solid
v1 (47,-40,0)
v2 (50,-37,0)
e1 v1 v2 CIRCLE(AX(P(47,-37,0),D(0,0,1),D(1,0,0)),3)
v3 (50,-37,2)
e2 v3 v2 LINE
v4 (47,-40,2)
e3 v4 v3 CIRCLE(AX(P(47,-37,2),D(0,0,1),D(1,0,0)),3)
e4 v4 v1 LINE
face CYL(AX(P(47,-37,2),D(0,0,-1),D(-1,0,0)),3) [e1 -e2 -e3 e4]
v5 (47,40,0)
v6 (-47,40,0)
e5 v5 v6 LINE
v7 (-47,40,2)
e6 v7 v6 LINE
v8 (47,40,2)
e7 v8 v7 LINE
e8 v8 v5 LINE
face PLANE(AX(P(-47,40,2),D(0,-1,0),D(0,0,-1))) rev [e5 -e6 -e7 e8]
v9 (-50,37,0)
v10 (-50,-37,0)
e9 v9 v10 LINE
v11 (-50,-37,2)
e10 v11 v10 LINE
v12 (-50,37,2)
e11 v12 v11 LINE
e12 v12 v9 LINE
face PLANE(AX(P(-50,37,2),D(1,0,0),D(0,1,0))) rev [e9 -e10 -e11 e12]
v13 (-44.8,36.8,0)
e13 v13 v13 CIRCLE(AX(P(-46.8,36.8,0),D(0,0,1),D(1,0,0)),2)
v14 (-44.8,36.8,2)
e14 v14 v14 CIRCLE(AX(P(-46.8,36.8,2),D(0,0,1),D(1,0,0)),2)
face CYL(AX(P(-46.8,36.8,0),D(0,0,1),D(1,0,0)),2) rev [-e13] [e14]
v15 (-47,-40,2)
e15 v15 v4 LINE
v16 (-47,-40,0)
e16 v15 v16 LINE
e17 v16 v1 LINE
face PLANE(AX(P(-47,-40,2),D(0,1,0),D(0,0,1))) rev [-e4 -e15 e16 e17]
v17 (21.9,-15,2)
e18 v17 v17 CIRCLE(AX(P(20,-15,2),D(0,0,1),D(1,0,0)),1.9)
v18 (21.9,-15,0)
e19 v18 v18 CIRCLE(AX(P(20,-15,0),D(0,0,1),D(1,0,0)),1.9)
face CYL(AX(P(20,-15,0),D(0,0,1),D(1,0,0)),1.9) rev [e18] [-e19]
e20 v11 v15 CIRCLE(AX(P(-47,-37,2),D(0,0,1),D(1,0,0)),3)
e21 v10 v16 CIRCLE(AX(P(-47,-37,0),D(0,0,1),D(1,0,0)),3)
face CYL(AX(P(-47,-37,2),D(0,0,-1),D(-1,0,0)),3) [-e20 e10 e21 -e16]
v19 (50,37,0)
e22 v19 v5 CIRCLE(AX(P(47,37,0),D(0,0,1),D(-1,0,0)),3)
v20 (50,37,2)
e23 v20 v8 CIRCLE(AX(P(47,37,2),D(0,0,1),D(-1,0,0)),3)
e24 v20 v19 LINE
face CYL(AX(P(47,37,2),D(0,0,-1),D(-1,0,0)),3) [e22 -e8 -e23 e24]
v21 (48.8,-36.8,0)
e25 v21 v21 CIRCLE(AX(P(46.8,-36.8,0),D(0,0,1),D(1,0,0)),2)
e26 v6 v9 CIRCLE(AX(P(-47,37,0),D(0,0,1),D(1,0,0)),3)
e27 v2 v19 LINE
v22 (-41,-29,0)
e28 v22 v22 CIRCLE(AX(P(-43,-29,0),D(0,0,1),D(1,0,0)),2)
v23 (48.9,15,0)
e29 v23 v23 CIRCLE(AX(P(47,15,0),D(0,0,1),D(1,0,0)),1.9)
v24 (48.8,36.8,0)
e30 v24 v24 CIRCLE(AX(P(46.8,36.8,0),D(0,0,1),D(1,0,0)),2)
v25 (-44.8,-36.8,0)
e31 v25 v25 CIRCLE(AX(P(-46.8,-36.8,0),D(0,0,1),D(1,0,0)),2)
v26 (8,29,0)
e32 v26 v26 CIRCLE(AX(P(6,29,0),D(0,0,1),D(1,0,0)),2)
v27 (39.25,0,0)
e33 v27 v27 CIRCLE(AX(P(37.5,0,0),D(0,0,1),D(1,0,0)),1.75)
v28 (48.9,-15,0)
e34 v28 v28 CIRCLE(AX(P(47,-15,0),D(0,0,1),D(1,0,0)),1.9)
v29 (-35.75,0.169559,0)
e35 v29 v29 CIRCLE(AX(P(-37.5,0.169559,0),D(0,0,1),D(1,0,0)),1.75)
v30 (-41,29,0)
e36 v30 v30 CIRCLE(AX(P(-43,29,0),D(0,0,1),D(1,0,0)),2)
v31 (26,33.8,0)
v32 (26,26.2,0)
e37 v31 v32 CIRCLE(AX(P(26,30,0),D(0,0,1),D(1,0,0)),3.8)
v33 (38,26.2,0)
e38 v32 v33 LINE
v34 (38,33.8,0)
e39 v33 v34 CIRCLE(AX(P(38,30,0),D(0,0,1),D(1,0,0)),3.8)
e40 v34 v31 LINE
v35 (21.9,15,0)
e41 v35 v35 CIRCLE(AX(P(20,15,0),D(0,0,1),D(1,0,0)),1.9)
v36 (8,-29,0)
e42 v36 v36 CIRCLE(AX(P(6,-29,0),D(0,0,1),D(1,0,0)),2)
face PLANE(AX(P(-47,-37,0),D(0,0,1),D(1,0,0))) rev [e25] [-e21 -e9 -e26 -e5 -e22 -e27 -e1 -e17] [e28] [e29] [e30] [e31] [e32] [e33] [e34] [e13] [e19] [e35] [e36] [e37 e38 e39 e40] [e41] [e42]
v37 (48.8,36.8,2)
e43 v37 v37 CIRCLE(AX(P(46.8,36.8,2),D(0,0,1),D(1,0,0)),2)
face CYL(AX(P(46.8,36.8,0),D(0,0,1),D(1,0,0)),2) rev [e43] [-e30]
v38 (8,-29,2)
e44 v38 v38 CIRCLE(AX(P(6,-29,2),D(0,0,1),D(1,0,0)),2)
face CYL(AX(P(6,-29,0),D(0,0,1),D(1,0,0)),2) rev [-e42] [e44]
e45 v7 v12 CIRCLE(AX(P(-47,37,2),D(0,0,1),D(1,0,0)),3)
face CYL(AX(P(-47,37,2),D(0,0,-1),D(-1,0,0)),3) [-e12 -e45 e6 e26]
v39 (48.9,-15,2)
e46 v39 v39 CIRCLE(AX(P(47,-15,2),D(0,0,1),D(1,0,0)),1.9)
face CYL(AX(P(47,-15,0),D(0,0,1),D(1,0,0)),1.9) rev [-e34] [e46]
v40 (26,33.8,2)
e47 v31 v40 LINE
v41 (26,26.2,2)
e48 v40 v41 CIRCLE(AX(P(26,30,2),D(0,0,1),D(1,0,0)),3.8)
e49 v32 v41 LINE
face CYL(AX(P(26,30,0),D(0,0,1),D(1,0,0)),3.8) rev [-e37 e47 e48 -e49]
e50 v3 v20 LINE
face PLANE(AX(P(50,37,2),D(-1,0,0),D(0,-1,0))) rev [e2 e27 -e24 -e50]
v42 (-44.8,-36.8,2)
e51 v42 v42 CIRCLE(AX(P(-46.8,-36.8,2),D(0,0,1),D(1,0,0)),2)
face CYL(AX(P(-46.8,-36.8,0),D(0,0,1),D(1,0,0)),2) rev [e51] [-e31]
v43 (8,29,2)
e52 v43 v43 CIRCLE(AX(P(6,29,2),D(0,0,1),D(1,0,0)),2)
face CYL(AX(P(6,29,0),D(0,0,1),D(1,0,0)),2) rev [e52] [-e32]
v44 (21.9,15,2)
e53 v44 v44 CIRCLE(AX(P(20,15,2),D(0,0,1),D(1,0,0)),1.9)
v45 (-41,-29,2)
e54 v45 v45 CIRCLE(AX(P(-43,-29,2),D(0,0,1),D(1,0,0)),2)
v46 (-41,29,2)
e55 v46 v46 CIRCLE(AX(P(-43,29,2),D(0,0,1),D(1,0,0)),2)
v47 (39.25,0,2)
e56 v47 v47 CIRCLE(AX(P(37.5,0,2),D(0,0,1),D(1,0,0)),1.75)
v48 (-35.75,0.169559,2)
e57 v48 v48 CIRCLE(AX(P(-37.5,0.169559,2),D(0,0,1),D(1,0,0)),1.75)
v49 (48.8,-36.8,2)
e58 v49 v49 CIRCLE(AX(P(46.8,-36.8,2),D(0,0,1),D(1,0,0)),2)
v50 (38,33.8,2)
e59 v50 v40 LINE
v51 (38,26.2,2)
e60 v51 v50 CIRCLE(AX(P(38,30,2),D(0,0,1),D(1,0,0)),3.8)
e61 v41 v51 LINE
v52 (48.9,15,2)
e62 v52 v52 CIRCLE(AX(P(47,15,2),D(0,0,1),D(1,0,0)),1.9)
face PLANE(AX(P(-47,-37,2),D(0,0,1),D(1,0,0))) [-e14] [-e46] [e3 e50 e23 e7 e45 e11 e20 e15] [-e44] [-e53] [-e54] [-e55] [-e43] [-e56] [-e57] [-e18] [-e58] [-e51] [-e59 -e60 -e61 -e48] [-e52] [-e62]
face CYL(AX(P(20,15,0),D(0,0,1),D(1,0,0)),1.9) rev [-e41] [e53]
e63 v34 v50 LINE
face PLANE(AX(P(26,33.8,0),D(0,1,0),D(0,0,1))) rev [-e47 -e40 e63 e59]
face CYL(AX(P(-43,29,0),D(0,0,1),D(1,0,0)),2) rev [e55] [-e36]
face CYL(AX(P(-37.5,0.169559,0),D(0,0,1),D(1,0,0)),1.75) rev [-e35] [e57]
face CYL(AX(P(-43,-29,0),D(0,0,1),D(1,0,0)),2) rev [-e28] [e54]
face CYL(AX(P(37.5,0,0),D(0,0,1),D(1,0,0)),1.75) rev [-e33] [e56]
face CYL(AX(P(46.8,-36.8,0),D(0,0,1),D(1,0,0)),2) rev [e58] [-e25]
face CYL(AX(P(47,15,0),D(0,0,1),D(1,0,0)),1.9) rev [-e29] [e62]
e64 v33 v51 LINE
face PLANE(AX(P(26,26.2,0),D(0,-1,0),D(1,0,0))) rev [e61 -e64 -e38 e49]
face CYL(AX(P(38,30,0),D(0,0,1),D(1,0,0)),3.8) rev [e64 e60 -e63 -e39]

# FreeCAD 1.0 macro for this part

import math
import FreeCAD as App
import Part
import Sketcher
Q = App.Units.Quantity

doc = App.newDocument("Part")
body = doc.addObject("PartDesign::Body", "Body")

# Sketch on XY plane
sketch1 = body.newObject("Sketcher::SketchObject", "Sketch")
sketch1.AttachmentSupport = (doc.getObject("XY_Plane"), [""])
sketch1.MapMode = "FlatFace"
sketch1.addGeometry(Part.LineSegment(App.Vector(47, 40, 0), App.Vector(-47, 40, 0)), False)
sketch1.addGeometry(Part.ArcOfCircle(Part.Circle(App.Vector(-47, 37, 0), App.Vector(0, 0, 1), 3), math.radians(90), math.radians(180)), False)
sketch1.addGeometry(Part.LineSegment(App.Vector(-50, 37, 0), App.Vector(-50, -37, 0)), False)
sketch1.addGeometry(Part.ArcOfCircle(Part.Circle(App.Vector(-47, -37, 0), App.Vector(0, 0, 1), 3), math.radians(180), math.radians(270)), False)
sketch1.addGeometry(Part.LineSegment(App.Vector(-47, -40, 0), App.Vector(47, -40, 0)), False)
sketch1.addGeometry(Part.ArcOfCircle(Part.Circle(App.Vector(47, -37, 0), App.Vector(0, 0, 1), 3), math.radians(-90), math.radians(0)), False)
sketch1.addGeometry(Part.LineSegment(App.Vector(50, -37, 0), App.Vector(50, 37, 0)), False)
sketch1.addGeometry(Part.ArcOfCircle(Part.Circle(App.Vector(47, 37, 0), App.Vector(0, 0, 1), 3), math.radians(0), math.radians(90)), False)
sketch1.addConstraint(Sketcher.Constraint("Tangent", 0, 2, 1, 1))
sketch1.addConstraint(Sketcher.Constraint("Tangent", 1, 2, 2, 1))
sketch1.addConstraint(Sketcher.Constraint("Tangent", 2, 2, 3, 1))
sketch1.addConstraint(Sketcher.Constraint("Tangent", 3, 2, 4, 1))
sketch1.addConstraint(Sketcher.Constraint("Tangent", 4, 2, 5, 1))
sketch1.addConstraint(Sketcher.Constraint("Tangent", 5, 2, 6, 1))
sketch1.addConstraint(Sketcher.Constraint("Tangent", 6, 2, 7, 1))
sketch1.addConstraint(Sketcher.Constraint("Tangent", 7, 2, 0, 1))
sketch1.addConstraint(Sketcher.Constraint("Horizontal", 0))
sketch1.addConstraint(Sketcher.Constraint("Vertical", 2))
sketch1.addConstraint(Sketcher.Constraint("Horizontal", 4))
sketch1.addConstraint(Sketcher.Constraint("Vertical", 6))
sketch1.addConstraint(Sketcher.Constraint("Equal", 1, 3))
sketch1.addConstraint(Sketcher.Constraint("Equal", 3, 5))
sketch1.addConstraint(Sketcher.Constraint("Equal", 5, 7))
sketch1.addConstraint(Sketcher.Constraint("Symmetric", 1, 3, 5, 3, -1, 1))
sketch1.addConstraint(Sketcher.Constraint("Radius", 1, Q("3 mm")))
sketch1.addConstraint(Sketcher.Constraint("DistanceX", 0, 2, 0, 1, Q("94 mm")))
sketch1.addConstraint(Sketcher.Constraint("DistanceY", 2, 2, 2, 1, Q("74 mm")))
pad1 = body.newObject("PartDesign::Pad", "Pad")
pad1.Profile = sketch1
pad1.Length = 2

# Sketch on XY plane
sketch2 = body.newObject("Sketcher::SketchObject", "Sketch001")
sketch2.AttachmentSupport = (doc.getObject("XY_Plane"), [""])
sketch2.MapMode = "FlatFace"
sketch2.AttachmentOffset = App.Placement(App.Vector(0, 0, 2), App.Rotation())
sketch2.addGeometry(Part.Circle(App.Vector(-46.8, 36.8, 0), App.Vector(0, 0, 1), 2), False)
sketch2.addGeometry(Part.Circle(App.Vector(46.8, 36.8, 0), App.Vector(0, 0, 1), 2), False)
sketch2.addGeometry(Part.Circle(App.Vector(46.8, -36.8, 0), App.Vector(0, 0, 1), 2), False)
sketch2.addGeometry(Part.Circle(App.Vector(-46.8, -36.8, 0), App.Vector(0, 0, 1), 2), False)
sketch2.addGeometry(Part.Circle(App.Vector(-43, 29, 0), App.Vector(0, 0, 1), 2), False)
sketch2.addGeometry(Part.Circle(App.Vector(6, 29, 0), App.Vector(0, 0, 1), 2), False)
sketch2.addGeometry(Part.Circle(App.Vector(6, -29, 0), App.Vector(0, 0, 1), 2), False)
sketch2.addGeometry(Part.Circle(App.Vector(-43, -29, 0), App.Vector(0, 0, 1), 2), False)
sketch2.addGeometry(Part.Circle(App.Vector(47, -15, 0), App.Vector(0, 0, 1), 1.9), False)
sketch2.addGeometry(Part.Circle(App.Vector(20, 15, 0), App.Vector(0, 0, 1), 1.9), False)
sketch2.addGeometry(Part.Circle(App.Vector(20, -15, 0), App.Vector(0, 0, 1), 1.9), False)
sketch2.addGeometry(Part.Circle(App.Vector(47, 15, 0), App.Vector(0, 0, 1), 1.9), False)
sketch2.addConstraint(Sketcher.Constraint("Equal", 0, 1))
sketch2.addConstraint(Sketcher.Constraint("Equal", 1, 2))
sketch2.addConstraint(Sketcher.Constraint("Equal", 2, 3))
sketch2.addConstraint(Sketcher.Constraint("Equal", 3, 4))
sketch2.addConstraint(Sketcher.Constraint("Equal", 4, 5))
sketch2.addConstraint(Sketcher.Constraint("Equal", 5, 6))
sketch2.addConstraint(Sketcher.Constraint("Equal", 6, 7))
sketch2.addConstraint(Sketcher.Constraint("Equal", 8, 9))
sketch2.addConstraint(Sketcher.Constraint("Equal", 9, 10))
sketch2.addConstraint(Sketcher.Constraint("Equal", 10, 11))
sketch2.addConstraint(Sketcher.Constraint("Symmetric", 0, 3, 2, 3, -1, 1))
sketch2.addConstraint(Sketcher.Constraint("Symmetric", 1, 3, 3, 3, -1, 1))
sketch2.addConstraint(Sketcher.Constraint("Symmetric", 0, 3, 1, 3, -2))
sketch2.addConstraint(Sketcher.Constraint("Symmetric", 5, 3, 6, 3, -1))
sketch2.addConstraint(Sketcher.Constraint("Symmetric", 4, 3, 7, 3, -1))
sketch2.addConstraint(Sketcher.Constraint("Symmetric", 9, 3, 10, 3, -1))
sketch2.addConstraint(Sketcher.Constraint("Symmetric", 8, 3, 11, 3, -1))
sketch2.addConstraint(Sketcher.Constraint("Horizontal", 4, 3, 5, 3))
sketch2.addConstraint(Sketcher.Constraint("Horizontal", 8, 3, 10, 3))
sketch2.addConstraint(Sketcher.Constraint("Diameter", 0, Q("4 mm")))
sketch2.addConstraint(Sketcher.Constraint("Diameter", 8, Q("3.8 mm")))
sketch2.addConstraint(Sketcher.Constraint("DistanceX", 4, 3, -1, 1, Q("43 mm")))
sketch2.addConstraint(Sketcher.Constraint("DistanceY", -1, 1, 4, 3, Q("29 mm")))
sketch2.addConstraint(Sketcher.Constraint("DistanceX", -1, 1, 5, 3, Q("6 mm")))
sketch2.addConstraint(Sketcher.Constraint("DistanceX", -1, 1, 8, 3, Q("47 mm")))
sketch2.addConstraint(Sketcher.Constraint("DistanceY", 8, 3, -1, 1, Q("15 mm")))
sketch2.addConstraint(Sketcher.Constraint("DistanceX", -1, 1, 9, 3, Q("20 mm")))
sketch2.addConstraint(Sketcher.Constraint("DistanceX", 0, 3, -1, 1, Q("46.8 mm")))
sketch2.addConstraint(Sketcher.Constraint("DistanceY", -1, 1, 0, 3, Q("36.8 mm")))
pocket1 = body.newObject("PartDesign::Pocket", "Pocket")
pocket1.Profile = sketch2
pocket1.Type = "ThroughAll"

# Sketch on XY plane
sketch3 = body.newObject("Sketcher::SketchObject", "Sketch002")
sketch3.AttachmentSupport = (doc.getObject("XY_Plane"), [""])
sketch3.MapMode = "FlatFace"
sketch3.AttachmentOffset = App.Placement(App.Vector(0, 0, 2), App.Rotation())
sketch3.addGeometry(Part.LineSegment(App.Vector(38, 33.8, 0), App.Vector(26, 33.8, 0)), False)
sketch3.addGeometry(Part.ArcOfCircle(Part.Circle(App.Vector(26, 30, 0), App.Vector(0, 0, 1), 3.8), math.radians(90), math.radians(270)), False)
sketch3.addGeometry(Part.LineSegment(App.Vector(26, 26.2, 0), App.Vector(38, 26.2, 0)), False)
sketch3.addGeometry(Part.ArcOfCircle(Part.Circle(App.Vector(38, 30, 0), App.Vector(0, 0, 1), 3.8), math.radians(-90), math.radians(90)), False)
sketch3.addConstraint(Sketcher.Constraint("Tangent", 0, 2, 1, 1))
sketch3.addConstraint(Sketcher.Constraint("Tangent", 1, 2, 2, 1))
sketch3.addConstraint(Sketcher.Constraint("Tangent", 2, 2, 3, 1))
sketch3.addConstraint(Sketcher.Constraint("Tangent", 3, 2, 0, 1))
sketch3.addConstraint(Sketcher.Constraint("Horizontal", 0))
sketch3.addConstraint(Sketcher.Constraint("Horizontal", 2))
sketch3.addConstraint(Sketcher.Constraint("Radius", 1, Q("3.8 mm")))
sketch3.addConstraint(Sketcher.Constraint("DistanceX", 0, 2, 0, 1, Q("12 mm")))
sketch3.addConstraint(Sketcher.Constraint("DistanceX", -1, 1, 1, 3, Q("26 mm")))
sketch3.addConstraint(Sketcher.Constraint("DistanceY", -1, 1, 1, 3, Q("30 mm")))
pocket2 = body.newObject("PartDesign::Pocket", "Pocket001")
pocket2.Profile = sketch3
pocket2.Type = "ThroughAll"

# Sketch on XY plane
sketch4 = body.newObject("Sketcher::SketchObject", "Sketch003")
sketch4.AttachmentSupport = (doc.getObject("XY_Plane"), [""])
sketch4.MapMode = "FlatFace"
sketch4.AttachmentOffset = App.Placement(App.Vector(0, 0, 2), App.Rotation())
sketch4.addGeometry(Part.Circle(App.Vector(-37.5, 0.169559, 0), App.Vector(0, 0, 1), 1.75), False)
sketch4.addGeometry(Part.Circle(App.Vector(37.5, 0, 0), App.Vector(0, 0, 1), 1.75), False)
sketch4.addConstraint(Sketcher.Constraint("Equal", 0, 1))
sketch4.addConstraint(Sketcher.Constraint("PointOnObject", 1, 3, -1))
sketch4.addConstraint(Sketcher.Constraint("Diameter", 0, Q("3.5 mm")))
sketch4.addConstraint(Sketcher.Constraint("DistanceX", 0, 3, 1, 3, Q("75 mm")))
sketch4.addConstraint(Sketcher.Constraint("DistanceX", 0, 3, -1, 1, Q("37.5 mm")))
sketch4.addConstraint(Sketcher.Constraint("DistanceY", -1, 1, 0, 3, Q("0.169559 mm")))
pocket3 = body.newObject("PartDesign::Pocket", "Pocket002")
pocket3.Profile = sketch4
pocket3.Type = "ThroughAll"

doc.recompute()
